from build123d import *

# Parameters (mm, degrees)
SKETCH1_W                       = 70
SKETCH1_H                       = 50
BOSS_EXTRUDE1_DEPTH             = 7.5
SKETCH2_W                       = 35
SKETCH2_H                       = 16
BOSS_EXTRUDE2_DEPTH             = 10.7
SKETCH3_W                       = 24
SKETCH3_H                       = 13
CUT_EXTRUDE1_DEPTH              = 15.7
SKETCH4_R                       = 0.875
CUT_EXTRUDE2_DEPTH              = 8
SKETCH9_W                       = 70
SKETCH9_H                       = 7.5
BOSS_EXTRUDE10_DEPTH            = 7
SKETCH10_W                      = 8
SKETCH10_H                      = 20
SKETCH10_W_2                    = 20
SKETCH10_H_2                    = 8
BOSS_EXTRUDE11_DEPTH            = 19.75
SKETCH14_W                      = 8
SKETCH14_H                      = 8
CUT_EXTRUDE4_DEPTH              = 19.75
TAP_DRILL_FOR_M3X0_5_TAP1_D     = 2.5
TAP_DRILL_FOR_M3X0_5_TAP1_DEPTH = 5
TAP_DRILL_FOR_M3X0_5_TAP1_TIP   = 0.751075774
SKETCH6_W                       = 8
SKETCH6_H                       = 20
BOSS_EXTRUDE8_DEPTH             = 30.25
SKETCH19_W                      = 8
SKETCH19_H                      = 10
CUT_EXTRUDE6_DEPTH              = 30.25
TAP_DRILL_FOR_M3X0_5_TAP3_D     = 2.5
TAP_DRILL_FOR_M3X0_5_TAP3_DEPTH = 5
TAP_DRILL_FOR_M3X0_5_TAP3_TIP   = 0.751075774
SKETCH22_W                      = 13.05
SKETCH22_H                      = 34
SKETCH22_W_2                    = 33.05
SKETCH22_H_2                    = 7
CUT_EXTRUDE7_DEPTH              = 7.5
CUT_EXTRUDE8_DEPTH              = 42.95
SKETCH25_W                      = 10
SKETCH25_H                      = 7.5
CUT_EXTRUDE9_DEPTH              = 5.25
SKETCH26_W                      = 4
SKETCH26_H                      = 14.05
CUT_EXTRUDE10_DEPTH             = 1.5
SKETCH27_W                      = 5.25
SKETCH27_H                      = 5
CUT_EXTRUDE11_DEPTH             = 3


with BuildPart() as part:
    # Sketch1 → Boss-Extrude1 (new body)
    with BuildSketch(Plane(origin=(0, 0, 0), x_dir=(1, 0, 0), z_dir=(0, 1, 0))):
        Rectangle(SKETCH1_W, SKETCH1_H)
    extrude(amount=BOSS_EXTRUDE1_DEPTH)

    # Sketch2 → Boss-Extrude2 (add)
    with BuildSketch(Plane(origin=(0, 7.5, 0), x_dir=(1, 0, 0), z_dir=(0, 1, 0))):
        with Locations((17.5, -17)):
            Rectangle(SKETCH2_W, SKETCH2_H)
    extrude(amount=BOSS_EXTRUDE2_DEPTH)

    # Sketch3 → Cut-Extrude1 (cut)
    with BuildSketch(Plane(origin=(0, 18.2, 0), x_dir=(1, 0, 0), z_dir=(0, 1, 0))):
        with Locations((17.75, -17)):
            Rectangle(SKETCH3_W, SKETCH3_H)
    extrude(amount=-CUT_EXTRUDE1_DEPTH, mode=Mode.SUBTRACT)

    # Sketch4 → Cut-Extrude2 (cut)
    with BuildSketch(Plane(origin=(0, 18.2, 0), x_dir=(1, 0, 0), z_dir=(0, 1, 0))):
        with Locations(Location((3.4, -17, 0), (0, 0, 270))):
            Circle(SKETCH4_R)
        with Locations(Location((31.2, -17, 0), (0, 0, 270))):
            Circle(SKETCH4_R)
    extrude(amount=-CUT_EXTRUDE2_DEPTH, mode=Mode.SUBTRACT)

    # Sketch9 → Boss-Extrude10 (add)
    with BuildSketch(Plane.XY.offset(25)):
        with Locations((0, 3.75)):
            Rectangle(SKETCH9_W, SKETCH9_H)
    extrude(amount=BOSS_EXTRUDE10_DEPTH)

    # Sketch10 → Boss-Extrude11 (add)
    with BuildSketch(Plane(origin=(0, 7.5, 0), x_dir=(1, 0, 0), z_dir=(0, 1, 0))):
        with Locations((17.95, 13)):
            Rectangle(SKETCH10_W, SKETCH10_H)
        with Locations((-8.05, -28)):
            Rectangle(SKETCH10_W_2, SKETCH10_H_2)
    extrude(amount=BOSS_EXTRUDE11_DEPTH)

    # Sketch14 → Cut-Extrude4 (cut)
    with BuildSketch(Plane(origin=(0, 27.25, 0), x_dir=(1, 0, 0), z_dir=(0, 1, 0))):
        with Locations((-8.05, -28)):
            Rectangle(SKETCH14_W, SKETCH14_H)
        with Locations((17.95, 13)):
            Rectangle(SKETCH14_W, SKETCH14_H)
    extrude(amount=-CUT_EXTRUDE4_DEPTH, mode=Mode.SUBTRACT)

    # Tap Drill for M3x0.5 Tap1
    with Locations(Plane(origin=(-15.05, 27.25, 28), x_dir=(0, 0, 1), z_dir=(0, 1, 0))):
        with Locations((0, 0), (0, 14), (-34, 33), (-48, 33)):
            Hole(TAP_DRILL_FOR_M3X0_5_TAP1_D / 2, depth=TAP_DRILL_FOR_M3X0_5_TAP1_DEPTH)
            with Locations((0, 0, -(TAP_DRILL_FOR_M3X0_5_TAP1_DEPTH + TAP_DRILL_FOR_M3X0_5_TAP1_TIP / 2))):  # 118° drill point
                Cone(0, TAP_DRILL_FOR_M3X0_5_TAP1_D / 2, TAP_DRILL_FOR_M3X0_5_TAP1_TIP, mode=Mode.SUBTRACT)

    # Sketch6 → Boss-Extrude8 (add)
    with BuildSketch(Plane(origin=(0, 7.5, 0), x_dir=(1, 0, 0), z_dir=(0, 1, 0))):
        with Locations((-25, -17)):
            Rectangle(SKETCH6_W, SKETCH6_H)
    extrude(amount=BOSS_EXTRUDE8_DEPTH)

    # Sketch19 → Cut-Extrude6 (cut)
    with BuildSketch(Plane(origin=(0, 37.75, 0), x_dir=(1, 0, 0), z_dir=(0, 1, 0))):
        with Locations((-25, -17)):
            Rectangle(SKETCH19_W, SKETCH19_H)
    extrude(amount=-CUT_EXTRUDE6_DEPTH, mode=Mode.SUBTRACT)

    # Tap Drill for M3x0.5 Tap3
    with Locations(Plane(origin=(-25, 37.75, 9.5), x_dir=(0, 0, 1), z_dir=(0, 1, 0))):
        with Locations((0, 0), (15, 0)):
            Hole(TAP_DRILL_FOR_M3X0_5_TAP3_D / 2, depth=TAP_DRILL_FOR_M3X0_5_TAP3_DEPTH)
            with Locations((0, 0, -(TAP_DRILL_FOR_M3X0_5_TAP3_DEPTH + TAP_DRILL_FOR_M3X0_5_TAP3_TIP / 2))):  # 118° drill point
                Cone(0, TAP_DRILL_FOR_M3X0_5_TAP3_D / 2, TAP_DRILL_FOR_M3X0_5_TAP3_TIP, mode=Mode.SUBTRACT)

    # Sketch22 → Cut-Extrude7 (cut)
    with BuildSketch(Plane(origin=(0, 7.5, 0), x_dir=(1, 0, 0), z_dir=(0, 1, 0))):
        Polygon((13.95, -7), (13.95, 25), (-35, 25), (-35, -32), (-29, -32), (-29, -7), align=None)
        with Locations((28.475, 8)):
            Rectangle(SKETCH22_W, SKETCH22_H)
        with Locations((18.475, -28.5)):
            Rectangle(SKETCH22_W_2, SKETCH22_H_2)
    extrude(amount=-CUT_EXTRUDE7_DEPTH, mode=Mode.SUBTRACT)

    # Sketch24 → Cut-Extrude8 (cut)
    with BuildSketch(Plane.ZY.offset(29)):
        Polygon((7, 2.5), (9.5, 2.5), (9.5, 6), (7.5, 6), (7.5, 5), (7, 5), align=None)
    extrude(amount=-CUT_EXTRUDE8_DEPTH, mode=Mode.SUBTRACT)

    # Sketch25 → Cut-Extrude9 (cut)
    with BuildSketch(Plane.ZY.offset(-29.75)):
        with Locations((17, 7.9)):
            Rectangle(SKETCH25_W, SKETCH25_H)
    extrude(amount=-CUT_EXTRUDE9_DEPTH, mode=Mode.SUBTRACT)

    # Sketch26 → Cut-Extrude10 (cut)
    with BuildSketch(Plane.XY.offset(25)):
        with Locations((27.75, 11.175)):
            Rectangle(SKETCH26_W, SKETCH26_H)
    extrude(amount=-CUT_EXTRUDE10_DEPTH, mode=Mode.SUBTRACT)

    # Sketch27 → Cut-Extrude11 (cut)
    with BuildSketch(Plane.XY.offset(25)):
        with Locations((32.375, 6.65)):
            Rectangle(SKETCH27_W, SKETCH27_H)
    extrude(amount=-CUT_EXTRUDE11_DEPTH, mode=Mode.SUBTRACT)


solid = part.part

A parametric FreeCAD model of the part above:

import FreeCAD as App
import Part
import Sketcher

V = App.Vector
Q = App.Units.Quantity

doc = App.newDocument("Part")
body = doc.addObject("PartDesign::Body", "Body")

# Sketch on XZ plane
sketch1 = doc.addObject("Sketcher::SketchObject", "Sketch")
body.addObject(sketch1)
sketch1.AttachmentSupport = (doc.XZ_Plane, [""])
sketch1.MapMode = "FlatFace"
sketch1.addGeometry(Part.LineSegment(V(-35, -25, 0), V(-35, 25, 0)), False)
sketch1.addGeometry(Part.LineSegment(V(-35, 25, 0), V(35, 25, 0)), False)
sketch1.addGeometry(Part.LineSegment(V(35, 25, 0), V(35, -25, 0)), False)
sketch1.addGeometry(Part.LineSegment(V(35, -25, 0), V(-35, -25, 0)), False)
sketch1.addConstraint(Sketcher.Constraint("Coincident", 0, 2, 1, 1))
sketch1.addConstraint(Sketcher.Constraint("Coincident", 1, 2, 2, 1))
sketch1.addConstraint(Sketcher.Constraint("Coincident", 2, 2, 3, 1))
sketch1.addConstraint(Sketcher.Constraint("Coincident", 3, 2, 0, 1))
sketch1.addConstraint(Sketcher.Constraint("Vertical", 0))
sketch1.addConstraint(Sketcher.Constraint("Horizontal", 1))
sketch1.addConstraint(Sketcher.Constraint("Vertical", 2))
sketch1.addConstraint(Sketcher.Constraint("Horizontal", 3))
sketch1.addConstraint(Sketcher.Constraint("Symmetric", 0, 2, 2, 2, -1, 1))
sketch1.addConstraint(Sketcher.Constraint("DistanceX", 1, 1, 1, 2, Q("70 mm")))
sketch1.addConstraint(Sketcher.Constraint("DistanceY", 0, 1, 0, 2, Q("50 mm")))
pad1 = doc.addObject("PartDesign::Pad", "Pad")
body.addObject(pad1)
pad1.Profile = sketch1
pad1.Length = 7.5
pad1.Reversed = True

# Sketch on XZ plane
sketch2 = doc.addObject("Sketcher::SketchObject", "Sketch001")
body.addObject(sketch2)
sketch2.AttachmentSupport = (doc.XZ_Plane, [""])
sketch2.MapMode = "FlatFace"
sketch2.AttachmentOffset = App.Placement(V(0, 0, -7.5), App.Rotation())
sketch2.addGeometry(Part.LineSegment(V(0, 9, 0), V(0, 25, 0)), False)
sketch2.addGeometry(Part.LineSegment(V(0, 25, 0), V(35, 25, 0)), False)
sketch2.addGeometry(Part.LineSegment(V(35, 25, 0), V(35, 9, 0)), False)
sketch2.addGeometry(Part.LineSegment(V(35, 9, 0), V(0, 9, 0)), False)
sketch2.addConstraint(Sketcher.Constraint("Coincident", 0, 2, 1, 1))
sketch2.addConstraint(Sketcher.Constraint("Coincident", 1, 2, 2, 1))
sketch2.addConstraint(Sketcher.Constraint("Coincident", 2, 2, 3, 1))
sketch2.addConstraint(Sketcher.Constraint("Coincident", 3, 2, 0, 1))
sketch2.addConstraint(Sketcher.Constraint("Vertical", 0))
sketch2.addConstraint(Sketcher.Constraint("Horizontal", 1))
sketch2.addConstraint(Sketcher.Constraint("Vertical", 2))
sketch2.addConstraint(Sketcher.Constraint("Horizontal", 3))
sketch2.addConstraint(Sketcher.Constraint("PointOnObject", 0, 2, -2))
sketch2.addConstraint(Sketcher.Constraint("DistanceX", 1, 1, 1, 2, Q("35 mm")))
sketch2.addConstraint(Sketcher.Constraint("DistanceY", 0, 1, 0, 2, Q("16 mm")))
sketch2.addConstraint(Sketcher.Constraint("DistanceY", -1, 1, 0, 2, Q("25 mm")))
pad2 = doc.addObject("PartDesign::Pad", "Pad001")
body.addObject(pad2)
pad2.Profile = sketch2
pad2.Length = 10.7
pad2.Reversed = True

# Sketch on XZ plane
sketch3 = doc.addObject("Sketcher::SketchObject", "Sketch002")
body.addObject(sketch3)
sketch3.AttachmentSupport = (doc.XZ_Plane, [""])
sketch3.MapMode = "FlatFace"
sketch3.AttachmentOffset = App.Placement(V(0, 0, -18.2), App.Rotation())
sketch3.addGeometry(Part.LineSegment(V(6, 10, 0), V(6, 24, 0)), False)
sketch3.addGeometry(Part.LineSegment(V(6, 24, 0), V(30, 24, 0)), False)
sketch3.addGeometry(Part.LineSegment(V(30, 24, 0), V(30, 10, 0)), False)
sketch3.addGeometry(Part.LineSegment(V(30, 10, 0), V(6, 10, 0)), False)
sketch3.addConstraint(Sketcher.Constraint("Coincident", 0, 2, 1, 1))
sketch3.addConstraint(Sketcher.Constraint("Coincident", 1, 2, 2, 1))
sketch3.addConstraint(Sketcher.Constraint("Coincident", 2, 2, 3, 1))
sketch3.addConstraint(Sketcher.Constraint("Coincident", 3, 2, 0, 1))
sketch3.addConstraint(Sketcher.Constraint("Vertical", 0))
sketch3.addConstraint(Sketcher.Constraint("Horizontal", 1))
sketch3.addConstraint(Sketcher.Constraint("Vertical", 2))
sketch3.addConstraint(Sketcher.Constraint("Horizontal", 3))
sketch3.addConstraint(Sketcher.Constraint("DistanceX", 1, 1, 1, 2, Q("24 mm")))
sketch3.addConstraint(Sketcher.Constraint("DistanceY", 0, 1, 0, 2, Q("13 mm")))
sketch3.addConstraint(Sketcher.Constraint("DistanceY", -1, 1, 0, 2, Q("23.5 mm")))
sketch3.addConstraint(Sketcher.Constraint("DistanceX", -1, 1, 0, 2, Q("5.75 mm")))
pocket1 = doc.addObject("PartDesign::Pocket", "Pocket")
body.addObject(pocket1)
pocket1.Profile = sketch3
pocket1.Length = 15.7
pocket1.Reversed = True

# Sketch on XZ plane
sketch4 = doc.addObject("Sketcher::SketchObject", "Sketch003")
body.addObject(sketch4)
sketch4.AttachmentSupport = (doc.XZ_Plane, [""])
sketch4.MapMode = "FlatFace"
sketch4.AttachmentOffset = App.Placement(V(0, 0, -18.2), App.Rotation())
sketch4.addGeometry(Part.Circle(V(3.4, 17, 0), V(0, 0, 1), 0.9), False)
sketch4.addGeometry(Part.Circle(V(31.2, 17, 0), V(0, 0, 1), 0.9), False)
sketch4.addConstraint(Sketcher.Constraint("Equal", 0, 1))
sketch4.addConstraint(Sketcher.Constraint("Horizontal", 0, 3, 1, 3))
sketch4.addConstraint(Sketcher.Constraint("Diameter", 0, Q("1.75 mm")))
sketch4.addConstraint(Sketcher.Constraint("DistanceY", -1, 1, 0, 3, Q("17 mm")))
sketch4.addConstraint(Sketcher.Constraint("DistanceX", -1, 1, 0, 3, Q("3.4 mm")))
sketch4.addConstraint(Sketcher.Constraint("DistanceX", -1, 1, 1, 3, Q("31.2 mm")))
pocket2 = doc.addObject("PartDesign::Pocket", "Pocket001")
body.addObject(pocket2)
pocket2.Profile = sketch4
pocket2.Length = 8
pocket2.Reversed = True

# Sketch on XY plane
sketch5 = doc.addObject("Sketcher::SketchObject", "Sketch004")
body.addObject(sketch5)
sketch5.AttachmentSupport = (doc.XY_Plane, [""])
sketch5.MapMode = "FlatFace"
sketch5.AttachmentOffset = App.Placement(V(0, 0, 25), App.Rotation())
sketch5.addGeometry(Part.LineSegment(V(-35, 8, 0), V(-35, 0, 0)), False)
sketch5.addGeometry(Part.LineSegment(V(-35, 0, 0), V(35, 0, 0)), False)
sketch5.addGeometry(Part.LineSegment(V(35, 0, 0), V(35, 8, 0)), False)
sketch5.addGeometry(Part.LineSegment(V(35, 8, 0), V(-35, 8, 0)), False)
sketch5.addConstraint(Sketcher.Constraint("Coincident", 0, 2, 1, 1))
sketch5.addConstraint(Sketcher.Constraint("Coincident", 1, 2, 2, 1))
sketch5.addConstraint(Sketcher.Constraint("Coincident", 2, 2, 3, 1))
sketch5.addConstraint(Sketcher.Constraint("Coincident", 3, 2, 0, 1))
sketch5.addConstraint(Sketcher.Constraint("Vertical", 0))
sketch5.addConstraint(Sketcher.Constraint("Horizontal", 1))
sketch5.addConstraint(Sketcher.Constraint("Vertical", 2))
sketch5.addConstraint(Sketcher.Constraint("Horizontal", 3))
sketch5.addConstraint(Sketcher.Constraint("Symmetric", 0, 2, 1, 2, -1, 1))
sketch5.addConstraint(Sketcher.Constraint("DistanceX", 1, 1, 1, 2, Q("70 mm")))
sketch5.addConstraint(Sketcher.Constraint("DistanceY", 0, 2, 0, 1, Q("7.5 mm")))
pad3 = doc.addObject("PartDesign::Pad", "Pad002")
body.addObject(pad3)
pad3.Profile = sketch5
pad3.Length = 7

# Sketch on XZ plane
sketch6 = doc.addObject("Sketcher::SketchObject", "Sketch005")
body.addObject(sketch6)
sketch6.AttachmentSupport = (doc.XZ_Plane, [""])
sketch6.MapMode = "FlatFace"
sketch6.AttachmentOffset = App.Placement(V(0, 0, -7.5), App.Rotation())
sketch6.addGeometry(Part.LineSegment(V(14, -23, 0), V(14, -3, 0)), False)
sketch6.addGeometry(Part.LineSegment(V(14, -3, 0), V(22, -3, 0)), False)
sketch6.addGeometry(Part.LineSegment(V(22, -3, 0), V(22, -23, 0)), False)
sketch6.addGeometry(Part.LineSegment(V(22, -23, 0), V(14, -23, 0)), False)
sketch6.addGeometry(Part.LineSegment(V(-18, 24, 0), V(-18, 32, 0)), False)
sketch6.addGeometry(Part.LineSegment(V(-18, 32, 0), V(2, 32, 0)), False)
sketch6.addGeometry(Part.LineSegment(V(2, 32, 0), V(2, 24, 0)), False)
sketch6.addGeometry(Part.LineSegment(V(2, 24, 0), V(-18, 24, 0)), False)
sketch6.addConstraint(Sketcher.Constraint("Coincident", 0, 2, 1, 1))
sketch6.addConstraint(Sketcher.Constraint("Coincident", 1, 2, 2, 1))
sketch6.addConstraint(Sketcher.Constraint("Coincident", 2, 2, 3, 1))
sketch6.addConstraint(Sketcher.Constraint("Coincident", 3, 2, 0, 1))
sketch6.addConstraint(Sketcher.Constraint("Coincident", 4, 2, 5, 1))
sketch6.addConstraint(Sketcher.Constraint("Coincident", 5, 2, 6, 1))
sketch6.addConstraint(Sketcher.Constraint("Coincident", 6, 2, 7, 1))
sketch6.addConstraint(Sketcher.Constraint("Coincident", 7, 2, 4, 1))
sketch6.addConstraint(Sketcher.Constraint("Vertical", 0))
sketch6.addConstraint(Sketcher.Constraint("Horizontal", 1))
sketch6.addConstraint(Sketcher.Constraint("Vertical", 2))
sketch6.addConstraint(Sketcher.Constraint("Horizontal", 3))
sketch6.addConstraint(Sketcher.Constraint("Vertical", 4))
sketch6.addConstraint(Sketcher.Constraint("Horizontal", 5))
sketch6.addConstraint(Sketcher.Constraint("Vertical", 6))
sketch6.addConstraint(Sketcher.Constraint("Horizontal", 7))
sketch6.addConstraint(Sketcher.Constraint("Equal", 7, 0))
sketch6.addConstraint(Sketcher.Constraint("Equal", 3, 4))
sketch6.addConstraint(Sketcher.Constraint("DistanceX", 1, 1, 1, 2, Q("8 mm")))
sketch6.addConstraint(Sketcher.Constraint("DistanceX", 5, 1, 5, 2, Q("20 mm")))
sketch6.addConstraint(Sketcher.Constraint("DistanceY", 0, 2, -1, 1, Q("3 mm")))
sketch6.addConstraint(Sketcher.Constraint("DistanceY", -1, 1, 4, 2, Q("32 mm")))
sketch6.addConstraint(Sketcher.Constraint("DistanceX", 4, 2, 0, 2, Q("32 mm")))
sketch6.addConstraint(Sketcher.Constraint("DistanceX", -1, 1, 0, 2, Q("13.95 mm")))
pad4 = doc.addObject("PartDesign::Pad", "Pad003")
body.addObject(pad4)
pad4.Profile = sketch6
pad4.Length = 19.75
pad4.Reversed = True

# Sketch on XZ plane
sketch7 = doc.addObject("Sketcher::SketchObject", "Sketch006")
body.addObject(sketch7)
sketch7.AttachmentSupport = (doc.XZ_Plane, [""])
sketch7.MapMode = "FlatFace"
sketch7.AttachmentOffset = App.Placement(V(0, 0, -27.25), App.Rotation())
sketch7.addGeometry(Part.LineSegment(V(-12, 24, 0), V(-12, 32, 0)), False)
sketch7.addGeometry(Part.LineSegment(V(-12, 32, 0), V(-4, 32, 0)), False)
sketch7.addGeometry(Part.LineSegment(V(-4, 32, 0), V(-4, 24, 0)), False)
sketch7.addGeometry(Part.LineSegment(V(-4, 24, 0), V(-12, 24, 0)), False)
sketch7.addGeometry(Part.LineSegment(V(14, -17, 0), V(14, -9, 0)), False)
sketch7.addGeometry(Part.LineSegment(V(14, -9, 0), V(22, -9, 0)), False)
sketch7.addGeometry(Part.LineSegment(V(22, -9, 0), V(22, -17, 0)), False)
sketch7.addGeometry(Part.LineSegment(V(22, -17, 0), V(14, -17, 0)), False)
sketch7.addConstraint(Sketcher.Constraint("Coincident", 0, 2, 1, 1))
sketch7.addConstraint(Sketcher.Constraint("Coincident", 1, 2, 2, 1))
sketch7.addConstraint(Sketcher.Constraint("Coincident", 2, 2, 3, 1))
sketch7.addConstraint(Sketcher.Constraint("Coincident", 3, 2, 0, 1))
sketch7.addConstraint(Sketcher.Constraint("Coincident", 4, 2, 5, 1))
sketch7.addConstraint(Sketcher.Constraint("Coincident", 5, 2, 6, 1))
sketch7.addConstraint(Sketcher.Constraint("Coincident", 6, 2, 7, 1))
sketch7.addConstraint(Sketcher.Constraint("Coincident", 7, 2, 4, 1))
sketch7.addConstraint(Sketcher.Constraint("Vertical", 0))
sketch7.addConstraint(Sketcher.Constraint("Horizontal", 1))
sketch7.addConstraint(Sketcher.Constraint("Vertical", 2))
sketch7.addConstraint(Sketcher.Constraint("Horizontal", 3))
sketch7.addConstraint(Sketcher.Constraint("Vertical", 4))
sketch7.addConstraint(Sketcher.Constraint("Horizontal", 5))
sketch7.addConstraint(Sketcher.Constraint("Vertical", 6))
sketch7.addConstraint(Sketcher.Constraint("Horizontal", 7))
sketch7.addConstraint(Sketcher.Constraint("Equal", 3, 5))
sketch7.addConstraint(Sketcher.Constraint("Equal", 7, 0))
sketch7.addConstraint(Sketcher.Constraint("Equal", 2, 4))
sketch7.addConstraint(Sketcher.Constraint("DistanceX", 1, 1, 1, 2, Q("8 mm")))
sketch7.addConstraint(Sketcher.Constraint("DistanceY", -1, 1, 0, 2, Q("32 mm")))
sketch7.addConstraint(Sketcher.Constraint("DistanceY", 4, 2, -1, 1, Q("9 mm")))
sketch7.addConstraint(Sketcher.Constraint("DistanceX", 2, 2, 4, 2, Q("18 mm")))
sketch7.addConstraint(Sketcher.Constraint("DistanceX", 0, 2, -1, 1, Q("12.05 mm")))
pocket3 = doc.addObject("PartDesign::Pocket", "Pocket002")
body.addObject(pocket3)
pocket3.Profile = sketch7
pocket3.Length = 19.75
pocket3.Reversed = True

# Sketch on XZ plane
sketch8 = doc.addObject("Sketcher::SketchObject", "Sketch007")
body.addObject(sketch8)
sketch8.AttachmentSupport = (doc.XZ_Plane, [""])
sketch8.MapMode = "FlatFace"
sketch8.AttachmentOffset = App.Placement(V(0, 0, -27.25), App.Rotation())
sketch8.addGeometry(Part.Circle(V(-15.1, 28, 0), V(0, 0, 1), 1.2), False)
sketch8.addGeometry(Part.Circle(V(-1.1, 28, 0), V(0, 0, 1), 1.2), False)
sketch8.addGeometry(Part.Circle(V(17.9, -6, 0), V(0, 0, 1), 1.2), False)
sketch8.addGeometry(Part.Circle(V(17.9, -20, 0), V(0, 0, 1), 1.2), False)
sketch8.addConstraint(Sketcher.Constraint("Equal", 0, 1))
sketch8.addConstraint(Sketcher.Constraint("Equal", 1, 2))
sketch8.addConstraint(Sketcher.Constraint("Equal", 2, 3))
sketch8.addConstraint(Sketcher.Constraint("Horizontal", 0, 3, 1, 3))
sketch8.addConstraint(Sketcher.Constraint("Vertical", 2, 3, 3, 3))
sketch8.addConstraint(Sketcher.Constraint("Diameter", 0, Q("2.5 mm")))
sketch8.addConstraint(Sketcher.Constraint("DistanceY", -1, 1, 0, 3, Q("28 mm")))
sketch8.addConstraint(Sketcher.Constraint("DistanceY", 2, 3, -1, 1, Q("6 mm")))
sketch8.addConstraint(Sketcher.Constraint("DistanceY", 3, 3, -1, 1, Q("20 mm")))
sketch8.addConstraint(Sketcher.Constraint("DistanceX", 0, 3, 1, 3, Q("14 mm")))
sketch8.addConstraint(Sketcher.Constraint("DistanceX", 1, 3, 2, 3, Q("19 mm")))
sketch8.addConstraint(Sketcher.Constraint("DistanceX", 0, 3, -1, 1, Q("15.05 mm")))
doc.recompute()
hole = doc.addObject("PartDesign::Hole", "Hole")
body.addObject(hole)
hole.Profile = sketch8
hole.ThreadType = "None"
hole.Diameter = 2.5
hole.DepthType = "Dimension"
hole.Depth = 5
hole.DrillPoint = "Angled"
hole.DrillPointAngle = 118
hole.Reversed = True

# Sketch on XZ plane
sketch9 = doc.addObject("Sketcher::SketchObject", "Sketch008")
body.addObject(sketch9)
sketch9.AttachmentSupport = (doc.XZ_Plane, [""])
sketch9.MapMode = "FlatFace"
sketch9.AttachmentOffset = App.Placement(V(0, 0, -7.5), App.Rotation())
sketch9.addGeometry(Part.LineSegment(V(-29, 7, 0), V(-29, 27, 0)), False)
sketch9.addGeometry(Part.LineSegment(V(-29, 27, 0), V(-21, 27, 0)), False)
sketch9.addGeometry(Part.LineSegment(V(-21, 27, 0), V(-21, 7, 0)), False)
sketch9.addGeometry(Part.LineSegment(V(-21, 7, 0), V(-29, 7, 0)), False)
sketch9.addConstraint(Sketcher.Constraint("Coincident", 0, 2, 1, 1))
sketch9.addConstraint(Sketcher.Constraint("Coincident", 1, 2, 2, 1))
sketch9.addConstraint(Sketcher.Constraint("Coincident", 2, 2, 3, 1))
sketch9.addConstraint(Sketcher.Constraint("Coincident", 3, 2, 0, 1))
sketch9.addConstraint(Sketcher.Constraint("Vertical", 0))
sketch9.addConstraint(Sketcher.Constraint("Horizontal", 1))
sketch9.addConstraint(Sketcher.Constraint("Vertical", 2))
sketch9.addConstraint(Sketcher.Constraint("Horizontal", 3))
sketch9.addConstraint(Sketcher.Constraint("DistanceX", 1, 1, 1, 2, Q("8 mm")))
sketch9.addConstraint(Sketcher.Constraint("DistanceY", 0, 1, 0, 2, Q("20 mm")))
sketch9.addConstraint(Sketcher.Constraint("DistanceX", 0, 2, -1, 1, Q("29 mm")))
sketch9.addConstraint(Sketcher.Constraint("DistanceY", -1, 1, 0, 2, Q("27 mm")))
pad5 = doc.addObject("PartDesign::Pad", "Pad004")
body.addObject(pad5)
pad5.Profile = sketch9
pad5.Length = 30.25
pad5.Reversed = True

# Sketch on XZ plane
sketch10 = doc.addObject("Sketcher::SketchObject", "Sketch009")
body.addObject(sketch10)
sketch10.AttachmentSupport = (doc.XZ_Plane, [""])
sketch10.MapMode = "FlatFace"
sketch10.AttachmentOffset = App.Placement(V(0, 0, -37.75), App.Rotation())
sketch10.addGeometry(Part.LineSegment(V(-29, 12, 0), V(-29, 22, 0)), False)
sketch10.addGeometry(Part.LineSegment(V(-29, 22, 0), V(-21, 22, 0)), False)
sketch10.addGeometry(Part.LineSegment(V(-21, 22, 0), V(-21, 12, 0)), False)
sketch10.addGeometry(Part.LineSegment(V(-21, 12, 0), V(-29, 12, 0)), False)
sketch10.addConstraint(Sketcher.Constraint("Coincident", 0, 2, 1, 1))
sketch10.addConstraint(Sketcher.Constraint("Coincident", 1, 2, 2, 1))
sketch10.addConstraint(Sketcher.Constraint("Coincident", 2, 2, 3, 1))
sketch10.addConstraint(Sketcher.Constraint("Coincident", 3, 2, 0, 1))
sketch10.addConstraint(Sketcher.Constraint("Vertical", 0))
sketch10.addConstraint(Sketcher.Constraint("Horizontal", 1))
sketch10.addConstraint(Sketcher.Constraint("Vertical", 2))
sketch10.addConstraint(Sketcher.Constraint("Horizontal", 3))
sketch10.addConstraint(Sketcher.Constraint("DistanceX", 1, 1, 1, 2, Q("8 mm")))
sketch10.addConstraint(Sketcher.Constraint("DistanceY", 0, 1, 0, 2, Q("10 mm")))
sketch10.addConstraint(Sketcher.Constraint("DistanceX", 0, 2, -1, 1, Q("29 mm")))
sketch10.addConstraint(Sketcher.Constraint("DistanceY", -1, 1, 0, 2, Q("22 mm")))
pocket4 = doc.addObject("PartDesign::Pocket", "Pocket003")
body.addObject(pocket4)
pocket4.Profile = sketch10
pocket4.Length = 30.25
pocket4.Reversed = True

# Sketch on XZ plane
sketch11 = doc.addObject("Sketcher::SketchObject", "Sketch010")
body.addObject(sketch11)
sketch11.AttachmentSupport = (doc.XZ_Plane, [""])
sketch11.MapMode = "FlatFace"
sketch11.AttachmentOffset = App.Placement(V(0, 0, -37.75), App.Rotation())
sketch11.addGeometry(Part.Circle(V(-25, 9.5, 0), V(0, 0, 1), 1.2), False)
sketch11.addGeometry(Part.Circle(V(-25, 24.5, 0), V(0, 0, 1), 1.2), False)
sketch11.addConstraint(Sketcher.Constraint("Equal", 0, 1))
sketch11.addConstraint(Sketcher.Constraint("Vertical", 0, 3, 1, 3))
sketch11.addConstraint(Sketcher.Constraint("Diameter", 0, Q("2.5 mm")))
sketch11.addConstraint(Sketcher.Constraint("DistanceX", 0, 3, -1, 1, Q("25 mm")))
sketch11.addConstraint(Sketcher.Constraint("DistanceY", 0, 3, 1, 3, Q("15 mm")))
sketch11.addConstraint(Sketcher.Constraint("DistanceY", -1, 1, 0, 3, Q("9.5 mm")))
doc.recompute()
hole2 = doc.addObject("PartDesign::Hole", "Hole001")
body.addObject(hole2)
hole2.Profile = sketch11
hole2.ThreadType = "None"
hole2.Diameter = 2.5
hole2.DepthType = "Dimension"
hole2.Depth = 5
hole2.DrillPoint = "Angled"
hole2.DrillPointAngle = 118
hole2.Reversed = True

# Sketch on XZ plane
sketch12 = doc.addObject("Sketcher::SketchObject", "Sketch011")
body.addObject(sketch12)
sketch12.AttachmentSupport = (doc.XZ_Plane, [""])
sketch12.MapMode = "FlatFace"
sketch12.AttachmentOffset = App.Placement(V(0, 0, -7.5), App.Rotation())
sketch12.addGeometry(Part.LineSegment(V(14, 7, 0), V(14, -25, 0)), False)
sketch12.addGeometry(Part.LineSegment(V(14, -25, 0), V(-35, -25, 0)), False)
sketch12.addGeometry(Part.LineSegment(V(-35, -25, 0), V(-35, 32, 0)), False)
sketch12.addGeometry(Part.LineSegment(V(-35, 32, 0), V(-29, 32, 0)), False)
sketch12.addGeometry(Part.LineSegment(V(-29, 32, 0), V(-29, 7, 0)), False)
sketch12.addGeometry(Part.LineSegment(V(-29, 7, 0), V(14, 7, 0)), False)
sketch12.addGeometry(Part.LineSegment(V(22, -25, 0), V(22, 9, 0)), False)
sketch12.addGeometry(Part.LineSegment(V(22, 9, 0), V(35, 9, 0)), False)
sketch12.addGeometry(Part.LineSegment(V(35, 9, 0), V(35, -25, 0)), False)
sketch12.addGeometry(Part.LineSegment(V(35, -25, 0), V(22, -25, 0)), False)
sketch12.addGeometry(Part.LineSegment(V(2, 25, 0), V(2, 32, 0)), False)
sketch12.addGeometry(Part.LineSegment(V(2, 32, 0), V(35, 32, 0)), False)
sketch12.addGeometry(Part.LineSegment(V(35, 32, 0), V(35, 25, 0)), False)
sketch12.addGeometry(Part.LineSegment(V(35, 25, 0), V(2, 25, 0)), False)
sketch12.addConstraint(Sketcher.Constraint("Coincident", 0, 2, 1, 1))
sketch12.addConstraint(Sketcher.Constraint("Coincident", 1, 2, 2, 1))
sketch12.addConstraint(Sketcher.Constraint("Coincident", 2, 2, 3, 1))
sketch12.addConstraint(Sketcher.Constraint("Coincident", 3, 2, 4, 1))
sketch12.addConstraint(Sketcher.Constraint("Coincident", 4, 2, 5, 1))
sketch12.addConstraint(Sketcher.Constraint("Coincident", 5, 2, 0, 1))
sketch12.addConstraint(Sketcher.Constraint("Coincident", 6, 2, 7, 1))
sketch12.addConstraint(Sketcher.Constraint("Coincident", 7, 2, 8, 1))
sketch12.addConstraint(Sketcher.Constraint("Coincident", 8, 2, 9, 1))
sketch12.addConstraint(Sketcher.Constraint("Coincident", 9, 2, 6, 1))
sketch12.addConstraint(Sketcher.Constraint("Coincident", 10, 2, 11, 1))
sketch12.addConstraint(Sketcher.Constraint("Coincident", 11, 2, 12, 1))
sketch12.addConstraint(Sketcher.Constraint("Coincident", 12, 2, 13, 1))
sketch12.addConstraint(Sketcher.Constraint("Coincident", 13, 2, 10, 1))
sketch12.addConstraint(Sketcher.Constraint("Vertical", 0))
sketch12.addConstraint(Sketcher.Constraint("Horizontal", 1))
sketch12.addConstraint(Sketcher.Constraint("Vertical", 2))
sketch12.addConstraint(Sketcher.Constraint("Horizontal", 3))
sketch12.addConstraint(Sketcher.Constraint("Vertical", 4))
sketch12.addConstraint(Sketcher.Constraint("Horizontal", 5))
sketch12.addConstraint(Sketcher.Constraint("Vertical", 6))
sketch12.addConstraint(Sketcher.Constraint("Horizontal", 7))
sketch12.addConstraint(Sketcher.Constraint("Vertical", 8))
sketch12.addConstraint(Sketcher.Constraint("Horizontal", 9))
sketch12.addConstraint(Sketcher.Constraint("Vertical", 10))
sketch12.addConstraint(Sketcher.Constraint("Horizontal", 11))
sketch12.addConstraint(Sketcher.Constraint("Vertical", 12))
sketch12.addConstraint(Sketcher.Constraint("Horizontal", 13))
sketch12.addConstraint(Sketcher.Constraint("Symmetric", 1, 2, 12, 2, -1, 1))
sketch12.addConstraint(Sketcher.Constraint("Symmetric", 1, 2, 8, 2, -2))
sketch12.addConstraint(Sketcher.Constraint("Horizontal", 3, 2, 10, 2))
sketch12.addConstraint(Sketcher.Constraint("DistanceX", 3, 1, 3, 2, Q("6 mm")))
sketch12.addConstraint(Sketcher.Constraint("DistanceY", 0, 2, 0, 1, Q("32 mm")))
sketch12.addConstraint(Sketcher.Constraint("DistanceY", 2, 1, 2, 2, Q("57 mm")))
sketch12.addConstraint(Sketcher.Constraint("DistanceY", 6, 1, 6, 2, Q("34 mm")))
sketch12.addConstraint(Sketcher.Constraint("DistanceY", 10, 1, 10, 2, Q("7 mm")))
sketch12.addConstraint(Sketcher.Constraint("DistanceX", 1, 2, -1, 1, Q("35 mm")))
sketch12.addConstraint(Sketcher.Constraint("DistanceX", 5, 2, 6, 2, Q("8 mm")))
sketch12.addConstraint(Sketcher.Constraint("DistanceX", 10, 2, 5, 2, Q("12 mm")))
sketch12.addConstraint(Sketcher.Constraint("DistanceX", 1, 2, 1, 1, Q("48.95 mm")))
pocket5 = doc.addObject("PartDesign::Pocket", "Pocket004")
body.addObject(pocket5)
pocket5.Profile = sketch12
pocket5.Length = 7.5
pocket5.Reversed = True

# Sketch on YZ plane
sketch13 = doc.addObject("Sketcher::SketchObject", "Sketch012")
body.addObject(sketch13)
sketch13.AttachmentSupport = (doc.YZ_Plane, [""])
sketch13.MapMode = "FlatFace"
sketch13.AttachmentOffset = App.Placement(V(0, 0, -29), App.Rotation())
sketch13.addGeometry(Part.LineSegment(V(2.5, 7, 0), V(2.5, 9.5, 0)), False)
sketch13.addGeometry(Part.LineSegment(V(2.5, 9.5, 0), V(6, 9.5, 0)), False)
sketch13.addGeometry(Part.LineSegment(V(6, 9.5, 0), V(6, 7.5, 0)), False)
sketch13.addGeometry(Part.LineSegment(V(6, 7.5, 0), V(5, 7.5, 0)), False)
sketch13.addGeometry(Part.LineSegment(V(5, 7.5, 0), V(5, 7, 0)), False)
sketch13.addGeometry(Part.LineSegment(V(5, 7, 0), V(2.5, 7, 0)), False)
sketch13.addConstraint(Sketcher.Constraint("Coincident", 0, 2, 1, 1))
sketch13.addConstraint(Sketcher.Constraint("Coincident", 1, 2, 2, 1))
sketch13.addConstraint(Sketcher.Constraint("Coincident", 2, 2, 3, 1))
sketch13.addConstraint(Sketcher.Constraint("Coincident", 3, 2, 4, 1))
sketch13.addConstraint(Sketcher.Constraint("Coincident", 4, 2, 5, 1))
sketch13.addConstraint(Sketcher.Constraint("Coincident", 5, 2, 0, 1))
sketch13.addConstraint(Sketcher.Constraint("Vertical", 0))
sketch13.addConstraint(Sketcher.Constraint("Horizontal", 1))
sketch13.addConstraint(Sketcher.Constraint("Vertical", 2))
sketch13.addConstraint(Sketcher.Constraint("Horizontal", 3))
sketch13.addConstraint(Sketcher.Constraint("Vertical", 4))
sketch13.addConstraint(Sketcher.Constraint("Horizontal", 5))
sketch13.addConstraint(Sketcher.Constraint("Equal", 5, 0))
sketch13.addConstraint(Sketcher.Constraint("DistanceX", 3, 2, 3, 1, Q("1 mm")))
sketch13.addConstraint(Sketcher.Constraint("DistanceY", 2, 2, 2, 1, Q("2 mm")))
sketch13.addConstraint(Sketcher.Constraint("DistanceX", 1, 1, 1, 2, Q("3.5 mm")))
sketch13.addConstraint(Sketcher.Constraint("DistanceX", -1, 1, 1, 2, Q("6 mm")))
sketch13.addConstraint(Sketcher.Constraint("DistanceY", -1, 1, 4, 2, Q("7 mm")))
pocket6 = doc.addObject("PartDesign::Pocket", "Pocket005")
body.addObject(pocket6)
pocket6.Profile = sketch13
pocket6.Length = 42.95
pocket6.Reversed = True

# Sketch on YZ plane
sketch14 = doc.addObject("Sketcher::SketchObject", "Sketch013")
body.addObject(sketch14)
sketch14.AttachmentSupport = (doc.YZ_Plane, [""])
sketch14.MapMode = "FlatFace"
sketch14.AttachmentOffset = App.Placement(V(0, 0, 29.75), App.Rotation())
sketch14.addGeometry(Part.LineSegment(V(12, 12, 0), V(4, 12, 0)), False)
sketch14.addGeometry(Part.LineSegment(V(4, 12, 0), V(4, 22, 0)), False)
sketch14.addGeometry(Part.LineSegment(V(4, 22, 0), V(12, 22, 0)), False)
sketch14.addGeometry(Part.LineSegment(V(12, 22, 0), V(12, 12, 0)), False)
sketch14.addConstraint(Sketcher.Constraint("Coincident", 0, 2, 1, 1))
sketch14.addConstraint(Sketcher.Constraint("Coincident", 1, 2, 2, 1))
sketch14.addConstraint(Sketcher.Constraint("Coincident", 2, 2, 3, 1))
sketch14.addConstraint(Sketcher.Constraint("Coincident", 3, 2, 0, 1))
sketch14.addConstraint(Sketcher.Constraint("Horizontal", 0))
sketch14.addConstraint(Sketcher.Constraint("Vertical", 1))
sketch14.addConstraint(Sketcher.Constraint("Horizontal", 2))
sketch14.addConstraint(Sketcher.Constraint("Vertical", 3))
sketch14.addConstraint(Sketcher.Constraint("DistanceY", 1, 1, 1, 2, Q("10 mm")))
sketch14.addConstraint(Sketcher.Constraint("DistanceX", 0, 2, 0, 1, Q("7.5 mm")))
sketch14.addConstraint(Sketcher.Constraint("DistanceY", -1, 1, 0, 2, Q("12 mm")))
sketch14.addConstraint(Sketcher.Constraint("DistanceX", -1, 1, 0, 2, Q("4.15 mm")))
pocket7 = doc.addObject("PartDesign::Pocket", "Pocket006")
body.addObject(pocket7)
pocket7.Profile = sketch14
pocket7.Length = 5.25
pocket7.Reversed = True

# Sketch on XY plane
sketch15 = doc.addObject("Sketcher::SketchObject", "Sketch014")
body.addObject(sketch15)
sketch15.AttachmentSupport = (doc.XY_Plane, [""])
sketch15.MapMode = "FlatFace"
sketch15.AttachmentOffset = App.Placement(V(0, 0, 25), App.Rotation())
sketch15.addGeometry(Part.LineSegment(V(25.8, 18.2, 0), V(25.8, 4.2, 0)), False)
sketch15.addGeometry(Part.LineSegment(V(25.8, 4.2, 0), V(29.8, 4.2, 0)), False)
sketch15.addGeometry(Part.LineSegment(V(29.8, 4.2, 0), V(29.8, 18.2, 0)), False)
sketch15.addGeometry(Part.LineSegment(V(29.8, 18.2, 0), V(25.8, 18.2, 0)), False)
sketch15.addConstraint(Sketcher.Constraint("Coincident", 0, 2, 1, 1))
sketch15.addConstraint(Sketcher.Constraint("Coincident", 1, 2, 2, 1))
sketch15.addConstraint(Sketcher.Constraint("Coincident", 2, 2, 3, 1))
sketch15.addConstraint(Sketcher.Constraint("Coincident", 3, 2, 0, 1))
sketch15.addConstraint(Sketcher.Constraint("Vertical", 0))
sketch15.addConstraint(Sketcher.Constraint("Horizontal", 1))
sketch15.addConstraint(Sketcher.Constraint("Vertical", 2))
sketch15.addConstraint(Sketcher.Constraint("Horizontal", 3))
sketch15.addConstraint(Sketcher.Constraint("DistanceX", 1, 1, 1, 2, Q("4 mm")))
sketch15.addConstraint(Sketcher.Constraint("DistanceY", 0, 2, 0, 1, Q("14.05 mm")))
sketch15.addConstraint(Sketcher.Constraint("DistanceY", -1, 1, 2, 2, Q("18.2 mm")))
sketch15.addConstraint(Sketcher.Constraint("DistanceX", -1, 1, 0, 2, Q("25.75 mm")))
pocket8 = doc.addObject("PartDesign::Pocket", "Pocket007")
body.addObject(pocket8)
pocket8.Profile = sketch15
pocket8.Length = 1.5

# Sketch on XY plane
sketch16 = doc.addObject("Sketcher::SketchObject", "Sketch015")
body.addObject(sketch16)
sketch16.AttachmentSupport = (doc.XY_Plane, [""])
sketch16.MapMode = "FlatFace"
sketch16.AttachmentOffset = App.Placement(V(0, 0, 25), App.Rotation())
sketch16.addGeometry(Part.LineSegment(V(30, 9, 0), V(30, 4, 0)), False)
sketch16.addGeometry(Part.LineSegment(V(30, 4, 0), V(35, 4, 0)), False)
sketch16.addGeometry(Part.LineSegment(V(35, 4, 0), V(35, 9, 0)), False)
sketch16.addGeometry(Part.LineSegment(V(35, 9, 0), V(30, 9, 0)), False)
sketch16.addConstraint(Sketcher.Constraint("Coincident", 0, 2, 1, 1))
sketch16.addConstraint(Sketcher.Constraint("Coincident", 1, 2, 2, 1))
sketch16.addConstraint(Sketcher.Constraint("Coincident", 2, 2, 3, 1))
sketch16.addConstraint(Sketcher.Constraint("Coincident", 3, 2, 0, 1))
sketch16.addConstraint(Sketcher.Constraint("Vertical", 0))
sketch16.addConstraint(Sketcher.Constraint("Horizontal", 1))
sketch16.addConstraint(Sketcher.Constraint("Vertical", 2))
sketch16.addConstraint(Sketcher.Constraint("Horizontal", 3))
sketch16.addConstraint(Sketcher.Constraint("DistanceY", 0, 2, 0, 1, Q("5 mm")))
sketch16.addConstraint(Sketcher.Constraint("DistanceX", -1, 1, 1, 2, Q("35 mm")))
sketch16.addConstraint(Sketcher.Constraint("DistanceX", 1, 1, 1, 2, Q("5.25 mm")))
sketch16.addConstraint(Sketcher.Constraint("DistanceY", -1, 1, 0, 2, Q("4.15 mm")))
pocket9 = doc.addObject("PartDesign::Pocket", "Pocket008")
body.addObject(pocket9)
pocket9.Profile = sketch16
pocket9.Length = 3

doc.recompute()
